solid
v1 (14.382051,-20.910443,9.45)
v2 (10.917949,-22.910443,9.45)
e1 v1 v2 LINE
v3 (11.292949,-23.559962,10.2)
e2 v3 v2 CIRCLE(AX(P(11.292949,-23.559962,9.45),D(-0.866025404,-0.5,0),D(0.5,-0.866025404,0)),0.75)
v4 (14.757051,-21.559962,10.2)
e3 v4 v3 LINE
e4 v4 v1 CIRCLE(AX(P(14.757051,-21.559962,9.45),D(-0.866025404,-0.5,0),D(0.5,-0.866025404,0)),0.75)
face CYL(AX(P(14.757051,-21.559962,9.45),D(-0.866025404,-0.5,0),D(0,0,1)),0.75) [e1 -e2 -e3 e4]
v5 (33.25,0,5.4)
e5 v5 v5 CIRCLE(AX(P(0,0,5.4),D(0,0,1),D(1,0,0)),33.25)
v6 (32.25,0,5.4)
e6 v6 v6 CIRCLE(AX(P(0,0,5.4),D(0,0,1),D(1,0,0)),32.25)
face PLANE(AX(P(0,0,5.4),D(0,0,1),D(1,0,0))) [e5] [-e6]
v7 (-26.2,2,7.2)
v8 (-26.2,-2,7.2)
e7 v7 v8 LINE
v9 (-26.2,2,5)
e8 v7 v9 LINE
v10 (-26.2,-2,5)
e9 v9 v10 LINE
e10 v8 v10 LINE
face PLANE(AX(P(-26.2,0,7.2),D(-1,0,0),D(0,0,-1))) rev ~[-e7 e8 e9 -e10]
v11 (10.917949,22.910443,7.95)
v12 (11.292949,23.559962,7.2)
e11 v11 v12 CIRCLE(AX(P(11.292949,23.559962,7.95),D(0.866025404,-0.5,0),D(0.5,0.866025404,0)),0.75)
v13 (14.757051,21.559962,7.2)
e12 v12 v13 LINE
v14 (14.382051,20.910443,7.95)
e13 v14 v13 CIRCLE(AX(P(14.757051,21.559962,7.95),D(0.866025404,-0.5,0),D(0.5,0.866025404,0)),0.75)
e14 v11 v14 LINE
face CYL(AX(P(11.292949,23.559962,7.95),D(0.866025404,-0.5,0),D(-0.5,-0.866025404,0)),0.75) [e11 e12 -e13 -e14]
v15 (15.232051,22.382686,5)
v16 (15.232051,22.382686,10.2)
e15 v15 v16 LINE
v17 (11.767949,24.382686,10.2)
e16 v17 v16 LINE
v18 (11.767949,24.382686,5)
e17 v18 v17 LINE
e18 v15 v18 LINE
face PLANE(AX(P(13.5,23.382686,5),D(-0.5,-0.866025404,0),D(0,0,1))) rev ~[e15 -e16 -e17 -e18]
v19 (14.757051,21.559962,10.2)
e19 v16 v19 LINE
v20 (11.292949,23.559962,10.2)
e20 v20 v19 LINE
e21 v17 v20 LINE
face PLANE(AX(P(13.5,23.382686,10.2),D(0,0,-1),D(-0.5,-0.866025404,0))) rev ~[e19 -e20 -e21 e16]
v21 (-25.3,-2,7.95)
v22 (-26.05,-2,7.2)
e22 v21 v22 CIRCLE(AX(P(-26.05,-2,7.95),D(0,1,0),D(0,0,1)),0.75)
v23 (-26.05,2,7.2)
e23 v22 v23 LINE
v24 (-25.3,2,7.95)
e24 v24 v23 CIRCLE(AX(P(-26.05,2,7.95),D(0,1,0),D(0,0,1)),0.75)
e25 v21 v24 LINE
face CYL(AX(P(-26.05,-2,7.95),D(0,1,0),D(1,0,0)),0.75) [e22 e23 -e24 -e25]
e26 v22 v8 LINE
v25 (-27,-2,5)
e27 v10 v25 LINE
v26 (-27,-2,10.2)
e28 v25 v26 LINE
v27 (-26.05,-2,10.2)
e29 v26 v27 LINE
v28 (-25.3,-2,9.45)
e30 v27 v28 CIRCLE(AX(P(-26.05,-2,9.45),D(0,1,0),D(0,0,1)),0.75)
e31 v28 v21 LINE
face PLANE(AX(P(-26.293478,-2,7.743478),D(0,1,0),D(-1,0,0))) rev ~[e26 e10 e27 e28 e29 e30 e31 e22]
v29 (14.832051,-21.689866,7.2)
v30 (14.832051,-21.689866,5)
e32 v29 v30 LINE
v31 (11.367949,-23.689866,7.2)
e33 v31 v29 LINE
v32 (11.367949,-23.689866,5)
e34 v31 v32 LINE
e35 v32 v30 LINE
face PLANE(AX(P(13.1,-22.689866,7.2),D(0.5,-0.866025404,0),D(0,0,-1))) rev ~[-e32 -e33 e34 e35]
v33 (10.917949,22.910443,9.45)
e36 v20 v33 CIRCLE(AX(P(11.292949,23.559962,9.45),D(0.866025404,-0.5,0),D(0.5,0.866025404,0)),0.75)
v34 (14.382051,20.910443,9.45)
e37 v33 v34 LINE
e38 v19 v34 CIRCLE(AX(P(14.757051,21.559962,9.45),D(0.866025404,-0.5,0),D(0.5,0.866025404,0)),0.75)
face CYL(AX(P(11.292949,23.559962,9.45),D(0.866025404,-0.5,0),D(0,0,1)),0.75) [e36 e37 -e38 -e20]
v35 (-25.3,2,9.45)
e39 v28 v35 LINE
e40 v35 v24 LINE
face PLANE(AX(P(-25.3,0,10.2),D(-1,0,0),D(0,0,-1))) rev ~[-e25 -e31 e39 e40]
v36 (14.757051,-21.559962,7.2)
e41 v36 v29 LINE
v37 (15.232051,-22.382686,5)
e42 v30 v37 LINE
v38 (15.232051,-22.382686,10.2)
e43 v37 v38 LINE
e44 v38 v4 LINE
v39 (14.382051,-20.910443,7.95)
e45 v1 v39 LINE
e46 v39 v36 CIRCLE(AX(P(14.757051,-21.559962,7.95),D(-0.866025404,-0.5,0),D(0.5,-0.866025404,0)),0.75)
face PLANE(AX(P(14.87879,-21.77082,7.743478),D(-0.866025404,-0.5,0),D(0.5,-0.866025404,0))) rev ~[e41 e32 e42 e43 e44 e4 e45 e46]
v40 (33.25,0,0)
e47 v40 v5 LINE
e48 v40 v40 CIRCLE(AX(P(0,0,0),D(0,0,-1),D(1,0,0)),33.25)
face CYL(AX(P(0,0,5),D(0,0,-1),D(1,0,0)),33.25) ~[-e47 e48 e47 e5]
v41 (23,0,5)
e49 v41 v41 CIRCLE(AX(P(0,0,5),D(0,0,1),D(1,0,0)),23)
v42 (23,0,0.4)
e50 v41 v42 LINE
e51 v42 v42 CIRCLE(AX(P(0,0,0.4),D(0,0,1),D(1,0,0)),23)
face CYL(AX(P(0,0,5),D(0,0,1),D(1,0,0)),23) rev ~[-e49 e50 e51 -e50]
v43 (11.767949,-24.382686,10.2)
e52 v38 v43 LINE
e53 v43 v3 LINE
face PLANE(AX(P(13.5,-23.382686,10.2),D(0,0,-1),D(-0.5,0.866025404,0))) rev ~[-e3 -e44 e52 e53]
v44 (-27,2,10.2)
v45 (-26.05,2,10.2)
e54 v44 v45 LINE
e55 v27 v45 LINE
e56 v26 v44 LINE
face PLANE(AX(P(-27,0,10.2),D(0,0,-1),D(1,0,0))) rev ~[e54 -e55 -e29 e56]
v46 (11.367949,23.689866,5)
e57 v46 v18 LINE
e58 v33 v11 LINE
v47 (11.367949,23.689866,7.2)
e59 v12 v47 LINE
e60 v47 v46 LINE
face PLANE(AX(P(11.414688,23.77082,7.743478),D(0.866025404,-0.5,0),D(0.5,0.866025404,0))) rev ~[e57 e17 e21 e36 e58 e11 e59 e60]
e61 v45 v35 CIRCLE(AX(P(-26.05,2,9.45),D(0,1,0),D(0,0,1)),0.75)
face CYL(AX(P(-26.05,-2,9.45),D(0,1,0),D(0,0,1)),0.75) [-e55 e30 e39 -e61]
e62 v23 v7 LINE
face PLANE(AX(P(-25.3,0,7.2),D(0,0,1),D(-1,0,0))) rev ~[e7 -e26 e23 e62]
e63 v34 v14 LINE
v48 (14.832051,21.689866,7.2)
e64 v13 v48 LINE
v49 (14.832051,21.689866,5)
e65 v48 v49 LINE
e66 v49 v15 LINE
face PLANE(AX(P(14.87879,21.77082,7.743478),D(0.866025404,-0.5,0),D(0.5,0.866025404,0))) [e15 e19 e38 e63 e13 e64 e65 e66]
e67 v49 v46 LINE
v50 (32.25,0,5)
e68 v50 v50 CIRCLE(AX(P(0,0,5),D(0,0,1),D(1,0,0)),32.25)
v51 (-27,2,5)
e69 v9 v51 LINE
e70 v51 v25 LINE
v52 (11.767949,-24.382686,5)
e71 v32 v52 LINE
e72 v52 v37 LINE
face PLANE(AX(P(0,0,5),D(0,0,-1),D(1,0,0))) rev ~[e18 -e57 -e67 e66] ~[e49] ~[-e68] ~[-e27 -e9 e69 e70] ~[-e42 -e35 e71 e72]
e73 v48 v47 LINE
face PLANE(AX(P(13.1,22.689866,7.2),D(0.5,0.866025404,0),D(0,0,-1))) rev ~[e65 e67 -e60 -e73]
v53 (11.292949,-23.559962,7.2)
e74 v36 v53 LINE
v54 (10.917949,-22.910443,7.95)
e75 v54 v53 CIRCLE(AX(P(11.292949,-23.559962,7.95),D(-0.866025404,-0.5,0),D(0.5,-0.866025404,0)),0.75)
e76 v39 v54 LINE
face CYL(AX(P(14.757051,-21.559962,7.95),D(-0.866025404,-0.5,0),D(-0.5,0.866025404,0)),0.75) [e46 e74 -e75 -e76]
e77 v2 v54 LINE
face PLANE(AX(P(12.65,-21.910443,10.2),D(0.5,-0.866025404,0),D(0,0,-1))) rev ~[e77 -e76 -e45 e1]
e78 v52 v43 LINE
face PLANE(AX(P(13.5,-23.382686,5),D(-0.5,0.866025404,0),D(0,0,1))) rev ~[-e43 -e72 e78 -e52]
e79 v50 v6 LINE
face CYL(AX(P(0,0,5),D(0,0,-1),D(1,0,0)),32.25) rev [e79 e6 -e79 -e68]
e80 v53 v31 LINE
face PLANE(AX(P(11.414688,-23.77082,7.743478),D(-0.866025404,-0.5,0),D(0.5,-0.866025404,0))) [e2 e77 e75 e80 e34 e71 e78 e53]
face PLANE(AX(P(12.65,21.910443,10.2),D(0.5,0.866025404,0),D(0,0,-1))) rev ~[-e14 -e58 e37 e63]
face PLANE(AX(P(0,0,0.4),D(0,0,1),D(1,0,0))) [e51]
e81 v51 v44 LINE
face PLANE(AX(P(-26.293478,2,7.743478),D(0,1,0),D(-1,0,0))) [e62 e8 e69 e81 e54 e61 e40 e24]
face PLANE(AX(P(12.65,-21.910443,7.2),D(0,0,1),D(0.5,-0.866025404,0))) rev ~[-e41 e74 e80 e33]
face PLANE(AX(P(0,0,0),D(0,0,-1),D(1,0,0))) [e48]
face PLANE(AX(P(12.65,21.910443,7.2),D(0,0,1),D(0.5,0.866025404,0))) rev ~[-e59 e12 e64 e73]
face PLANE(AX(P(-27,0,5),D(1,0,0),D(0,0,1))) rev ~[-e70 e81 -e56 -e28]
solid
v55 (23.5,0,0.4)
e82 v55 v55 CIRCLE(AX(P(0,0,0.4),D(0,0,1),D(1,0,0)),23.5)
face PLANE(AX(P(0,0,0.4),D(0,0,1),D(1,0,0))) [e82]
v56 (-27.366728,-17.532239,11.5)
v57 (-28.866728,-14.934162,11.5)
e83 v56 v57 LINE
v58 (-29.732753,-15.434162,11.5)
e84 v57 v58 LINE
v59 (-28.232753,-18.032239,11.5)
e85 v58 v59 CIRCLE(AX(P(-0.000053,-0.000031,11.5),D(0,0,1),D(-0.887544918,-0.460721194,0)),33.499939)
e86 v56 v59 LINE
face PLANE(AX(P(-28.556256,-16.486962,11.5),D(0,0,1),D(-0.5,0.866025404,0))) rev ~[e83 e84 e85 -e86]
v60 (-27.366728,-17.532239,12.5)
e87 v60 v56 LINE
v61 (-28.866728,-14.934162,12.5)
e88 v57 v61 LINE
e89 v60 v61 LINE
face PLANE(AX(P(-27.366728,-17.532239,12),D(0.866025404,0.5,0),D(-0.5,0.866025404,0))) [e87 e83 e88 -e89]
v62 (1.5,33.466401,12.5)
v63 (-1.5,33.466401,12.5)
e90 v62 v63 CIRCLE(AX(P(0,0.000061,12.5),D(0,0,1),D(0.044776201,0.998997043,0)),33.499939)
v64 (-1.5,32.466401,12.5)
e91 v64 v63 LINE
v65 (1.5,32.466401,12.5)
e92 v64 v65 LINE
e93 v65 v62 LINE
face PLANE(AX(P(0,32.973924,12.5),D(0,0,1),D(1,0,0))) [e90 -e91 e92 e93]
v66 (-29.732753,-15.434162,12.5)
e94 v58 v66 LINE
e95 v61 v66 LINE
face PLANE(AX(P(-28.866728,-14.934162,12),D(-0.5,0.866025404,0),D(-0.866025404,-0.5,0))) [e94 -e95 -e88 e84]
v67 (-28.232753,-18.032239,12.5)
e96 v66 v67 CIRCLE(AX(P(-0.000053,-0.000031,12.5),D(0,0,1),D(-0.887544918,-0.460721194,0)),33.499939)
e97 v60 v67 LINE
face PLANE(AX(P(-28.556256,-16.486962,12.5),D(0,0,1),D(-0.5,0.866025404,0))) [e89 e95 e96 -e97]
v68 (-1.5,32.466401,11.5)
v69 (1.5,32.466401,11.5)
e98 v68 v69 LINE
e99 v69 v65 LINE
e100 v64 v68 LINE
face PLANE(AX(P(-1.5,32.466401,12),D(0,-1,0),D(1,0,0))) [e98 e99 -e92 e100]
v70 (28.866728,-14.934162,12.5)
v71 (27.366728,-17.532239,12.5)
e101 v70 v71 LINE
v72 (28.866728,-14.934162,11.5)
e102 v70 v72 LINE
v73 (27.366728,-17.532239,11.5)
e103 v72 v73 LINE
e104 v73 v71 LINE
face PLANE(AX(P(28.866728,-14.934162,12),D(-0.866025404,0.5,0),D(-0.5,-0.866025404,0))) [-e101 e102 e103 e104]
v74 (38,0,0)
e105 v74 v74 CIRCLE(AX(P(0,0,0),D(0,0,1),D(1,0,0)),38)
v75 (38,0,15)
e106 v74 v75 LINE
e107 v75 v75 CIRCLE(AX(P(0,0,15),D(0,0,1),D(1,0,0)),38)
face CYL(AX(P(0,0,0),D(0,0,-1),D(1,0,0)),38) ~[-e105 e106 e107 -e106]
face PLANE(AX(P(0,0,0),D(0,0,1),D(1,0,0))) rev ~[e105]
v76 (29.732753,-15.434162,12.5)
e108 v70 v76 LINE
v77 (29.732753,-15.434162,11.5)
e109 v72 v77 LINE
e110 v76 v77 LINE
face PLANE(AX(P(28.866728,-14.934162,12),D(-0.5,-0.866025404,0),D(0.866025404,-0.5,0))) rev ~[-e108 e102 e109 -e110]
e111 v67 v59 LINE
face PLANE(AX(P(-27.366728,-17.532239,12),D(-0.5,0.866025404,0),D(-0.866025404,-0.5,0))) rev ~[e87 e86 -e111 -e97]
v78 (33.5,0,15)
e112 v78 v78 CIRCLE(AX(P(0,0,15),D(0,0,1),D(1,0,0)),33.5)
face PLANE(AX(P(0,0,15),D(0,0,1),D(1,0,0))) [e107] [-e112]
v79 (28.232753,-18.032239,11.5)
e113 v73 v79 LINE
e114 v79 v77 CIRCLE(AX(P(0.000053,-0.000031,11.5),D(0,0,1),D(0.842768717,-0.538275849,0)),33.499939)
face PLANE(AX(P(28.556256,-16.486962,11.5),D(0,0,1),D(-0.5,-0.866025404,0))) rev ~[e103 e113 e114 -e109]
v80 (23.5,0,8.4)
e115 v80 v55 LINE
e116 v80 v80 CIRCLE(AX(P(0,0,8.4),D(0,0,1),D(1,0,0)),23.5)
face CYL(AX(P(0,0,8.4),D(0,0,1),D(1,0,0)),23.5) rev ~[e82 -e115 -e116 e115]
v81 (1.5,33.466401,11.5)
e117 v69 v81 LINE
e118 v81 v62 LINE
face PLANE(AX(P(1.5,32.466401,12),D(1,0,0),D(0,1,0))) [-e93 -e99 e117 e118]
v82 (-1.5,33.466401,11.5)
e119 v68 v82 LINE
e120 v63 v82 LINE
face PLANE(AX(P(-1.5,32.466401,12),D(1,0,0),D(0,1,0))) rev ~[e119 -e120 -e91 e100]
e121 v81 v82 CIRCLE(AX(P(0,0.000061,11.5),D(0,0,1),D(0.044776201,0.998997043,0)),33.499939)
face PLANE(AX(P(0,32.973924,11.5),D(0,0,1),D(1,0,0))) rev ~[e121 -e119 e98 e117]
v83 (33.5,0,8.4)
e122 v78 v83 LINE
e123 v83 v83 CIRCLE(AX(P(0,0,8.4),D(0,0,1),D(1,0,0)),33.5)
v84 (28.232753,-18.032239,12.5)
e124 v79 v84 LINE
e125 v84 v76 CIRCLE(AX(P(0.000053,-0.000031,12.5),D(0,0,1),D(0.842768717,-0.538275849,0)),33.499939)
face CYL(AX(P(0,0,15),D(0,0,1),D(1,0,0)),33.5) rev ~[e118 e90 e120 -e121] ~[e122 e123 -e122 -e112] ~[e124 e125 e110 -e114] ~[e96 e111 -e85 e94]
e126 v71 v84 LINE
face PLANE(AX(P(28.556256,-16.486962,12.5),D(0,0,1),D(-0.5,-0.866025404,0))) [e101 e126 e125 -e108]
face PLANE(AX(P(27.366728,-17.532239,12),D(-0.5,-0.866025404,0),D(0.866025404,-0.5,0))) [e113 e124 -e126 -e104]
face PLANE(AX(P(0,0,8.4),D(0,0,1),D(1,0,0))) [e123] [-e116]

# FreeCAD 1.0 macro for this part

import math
import FreeCAD as App
import Part
import Sketcher

V = App.Vector
Q = App.Units.Quantity


def edges_at(feature, points):
    """Names of the edges that pass closest to the given points."""
    edges = feature.Shape.Edges
    near = lambda p: min(range(len(edges)), key=lambda i: edges[i].distToShape(Part.Vertex(*p))[0])
    return sorted({f"Edge{near(p) + 1}" for p in points})


def add_polygon(sketch, points):
    """Adds a closed chain of lines whose ends are joined by coincident constraints."""
    first, n = sketch.GeometryCount, len(points)
    for a, b in zip(points, points[1:] + points[:1]):
        sketch.addGeometry(Part.LineSegment(App.Vector(*a, 0), App.Vector(*b, 0)), False)
    for i in range(n):
        sketch.addConstraint(Sketcher.Constraint("Coincident", first + i, 2, first + (i + 1) % n, 1))

doc = App.newDocument("Part")
params = doc.addObject("Spreadsheet::Sheet", "Params")
for row, (alias, value) in enumerate([
    ("sketch1_diameter", "76 mm"),
    ("pad1_length", "15 mm"),
    ("sketch2_diameter", "67 mm"),
    ("pocket1_length", "6.6 mm"),
    ("sketch3_diameter", "47 mm"),
    ("pocket2_length", "8 mm"),
    ("sketch4_width", "3 mm"),
    ("sketch4_height", "1 mm"),
    ("pad2_length", "1 mm"),
    ("sketch5_diameter", "54.5 mm"),
    ("pad3_length", "5 mm"),
    ("sketch6_height", "3 mm"),
    ("sketch6_width", "0.8 mm"),
    ("sketch6_width2", "0.9 mm"),
    ("sketch6_height2", "5.2 mm"),
    ("pad4_length", "4 mm"),
    ("sketch7_diameter", "46 mm"),
    ("pocket3_length", "4.6 mm"),
    ("fillet_radius", "0.75 mm"),
    ("sketch8_diameter", "66.5 mm"),
    ("sketch8_diameter2", "54.5 mm"),
    ("pad5_length", "5 mm"),
    ("sketch9_diameter", "66.5 mm"),
    ("sketch9_diameter2", "64.5 mm"),
    ("pad6_length", "0.4 mm"),
], start=1):
    params.set(f"A{row}", alias)
    params.set(f"B{row}", "=" + value)
    params.setAlias(f"B{row}", alias)

body = doc.addObject("PartDesign::Body", "Body")

# Sketch on XY plane
sketch1 = body.newObject("Sketcher::SketchObject", "Sketch")
sketch1.AttachmentSupport = (doc.getObject("XY_Plane"), [""])
sketch1.MapMode = "FlatFace"
sketch1.addGeometry(Part.Circle(V(0, 0, 0), V(0, 0, 1), 38), False)
sketch1.addConstraint(Sketcher.Constraint("Coincident", 0, 3, -1, 1))
sketch1.addConstraint(Sketcher.Constraint("Diameter", 0, Q("76 mm")))
sketch1.setExpression("Constraints[1]", "Params.sketch1_diameter")
pad1 = body.newObject("PartDesign::Pad", "Pad")
pad1.Profile = sketch1
pad1.setExpression("Length", "Params.pad1_length")

# Sketch on XY plane
sketch2 = body.newObject("Sketcher::SketchObject", "Sketch001")
sketch2.AttachmentSupport = (doc.getObject("XY_Plane"), [""])
sketch2.MapMode = "FlatFace"
sketch2.AttachmentOffset = App.Placement(V(0, 0, 15), App.Rotation())
sketch2.addGeometry(Part.Circle(V(0, 0, 0), V(0, 0, 1), 34), False)
sketch2.addConstraint(Sketcher.Constraint("Coincident", 0, 3, -1, 1))
sketch2.addConstraint(Sketcher.Constraint("Diameter", 0, Q("67 mm")))
sketch2.setExpression("Constraints[1]", "Params.sketch2_diameter")
pocket1 = body.newObject("PartDesign::Pocket", "Pocket")
pocket1.Profile = sketch2
pocket1.setExpression("Length", "Params.pocket1_length")

# Sketch on XY plane
sketch3 = body.newObject("Sketcher::SketchObject", "Sketch002")
sketch3.AttachmentSupport = (doc.getObject("XY_Plane"), [""])
sketch3.MapMode = "FlatFace"
sketch3.AttachmentOffset = App.Placement(V(0, 0, 8.4), App.Rotation())
sketch3.addGeometry(Part.Circle(V(0, 0, 0), V(0, 0, 1), 24), False)
sketch3.addConstraint(Sketcher.Constraint("Coincident", 0, 3, -1, 1))
sketch3.addConstraint(Sketcher.Constraint("Diameter", 0, Q("47 mm")))
sketch3.setExpression("Constraints[1]", "Params.sketch3_diameter")
pocket2 = body.newObject("PartDesign::Pocket", "Pocket001")
pocket2.Profile = sketch3
pocket2.setExpression("Length", "Params.pocket2_length")

# Sketch on XY plane
sketch4 = body.newObject("Sketcher::SketchObject", "Sketch003")
sketch4.AttachmentSupport = (doc.getObject("XY_Plane"), [""])
sketch4.MapMode = "FlatFace"
sketch4.AttachmentOffset = App.Placement(V(0, 0, 12), App.Rotation())
sketch4.addGeometry(Part.LineSegment(V(-1.5, 32.5, 0), V(1.5, 32.5, 0)), False)
sketch4.addGeometry(Part.LineSegment(V(1.5, 32.5, 0), V(1.5, 33.5, 0)), False)
sketch4.addGeometry(Part.ArcOfCircle(Part.Circle(V(0, 0, 0), V(0, 0, 1), 33.5), math.radians(87.43), math.radians(92.57)), False)
sketch4.addGeometry(Part.LineSegment(V(-1.5, 33.5, 0), V(-1.5, 32.5, 0)), False)
sketch4.addConstraint(Sketcher.Constraint("Coincident", 0, 2, 1, 1))
sketch4.addConstraint(Sketcher.Constraint("Coincident", 1, 2, 2, 1))
sketch4.addConstraint(Sketcher.Constraint("Coincident", 2, 2, 3, 1))
sketch4.addConstraint(Sketcher.Constraint("Coincident", 3, 2, 0, 1))
sketch4.addConstraint(Sketcher.Constraint("Horizontal", 0))
sketch4.addConstraint(Sketcher.Constraint("Vertical", 1))
sketch4.addConstraint(Sketcher.Constraint("Vertical", 3))
sketch4.addConstraint(Sketcher.Constraint("Symmetric", 1, 2, 2, 2, -2))
sketch4.addConstraint(Sketcher.Constraint("DistanceX", 0, 1, 0, 2, Q("3 mm")))
sketch4.addConstraint(Sketcher.Constraint("DistanceY", 1, 1, 1, 2, Q("1 mm")))
sketch4.addConstraint(Sketcher.Constraint("Radius", 2, Q("33.499939 mm")))
sketch4.addConstraint(Sketcher.Constraint("DistanceY", -1, 1, 0, 2, Q("32.466401 mm")))
sketch4.setExpression("Constraints[8]", "Params.sketch4_width")
sketch4.setExpression("Constraints[9]", "Params.sketch4_height")
pad2 = body.newObject("PartDesign::Pad", "Pad001")
pad2.Profile = sketch4
pad2.setExpression("Length", "Params.pad2_length")
pad2.Midplane = True
doc.recompute()

polarpattern = body.newObject("PartDesign::PolarPattern", "PolarPattern")
polarpattern.Originals = [pad2]
polarpattern.Axis = (doc.getObject("Z_Axis"), [""])
polarpattern.Angle = 360
polarpattern.Occurrences = 3
body.Tip = polarpattern
body2 = doc.addObject("PartDesign::Body", "Body001")

# Sketch on XY plane
sketch5 = body2.newObject("Sketcher::SketchObject", "Sketch004")
sketch5.AttachmentSupport = (doc.getObject("XY_Plane001"), [""])
sketch5.MapMode = "FlatFace"
sketch5.addGeometry(Part.Circle(V(0, 0, 0), V(0, 0, 1), 27), False)
sketch5.addConstraint(Sketcher.Constraint("Coincident", 0, 3, -1, 1))
sketch5.addConstraint(Sketcher.Constraint("Diameter", 0, Q("54.5 mm")))
sketch5.setExpression("Constraints[1]", "Params.sketch5_diameter")
pad3 = body2.newObject("PartDesign::Pad", "Pad002")
pad3.Profile = sketch5
pad3.setExpression("Length", "Params.pad3_length")

# Sketch on XZ plane
sketch6 = body2.newObject("Sketcher::SketchObject", "Sketch005")
sketch6.AttachmentSupport = (doc.getObject("XZ_Plane001"), [""])
sketch6.MapMode = "FlatFace"
add_polygon(sketch6, [(-27, 10.2), (-27, 5), (-26.2, 5), (-26.2, 7.2), (-25.3, 7.2), (-25.3, 10.2)])  # lines 0-5
sketch6.addConstraint(Sketcher.Constraint("Vertical", 0))
sketch6.addConstraint(Sketcher.Constraint("Horizontal", 1))
sketch6.addConstraint(Sketcher.Constraint("Vertical", 2))
sketch6.addConstraint(Sketcher.Constraint("Horizontal", 3))
sketch6.addConstraint(Sketcher.Constraint("Vertical", 4))
sketch6.addConstraint(Sketcher.Constraint("Horizontal", 5))
sketch6.addConstraint(Sketcher.Constraint("DistanceY", 4, 1, 4, 2, Q("3 mm")))
sketch6.addConstraint(Sketcher.Constraint("DistanceX", 1, 1, 1, 2, Q("0.8 mm")))
sketch6.addConstraint(Sketcher.Constraint("DistanceX", 3, 1, 3, 2, Q("0.9 mm")))
sketch6.addConstraint(Sketcher.Constraint("DistanceY", 0, 2, 0, 1, Q("5.2 mm")))
sketch6.addConstraint(Sketcher.Constraint("DistanceX", 0, 2, -1, 1, Q("27 mm")))
sketch6.addConstraint(Sketcher.Constraint("DistanceY", -1, 1, 0, 2, Q("5 mm")))
sketch6.setExpression("Constraints[12]", "Params.sketch6_height")
sketch6.setExpression("Constraints[13]", "Params.sketch6_width")
sketch6.setExpression("Constraints[14]", "Params.sketch6_width2")
sketch6.setExpression("Constraints[15]", "Params.sketch6_height2")
pad4 = body2.newObject("PartDesign::Pad", "Pad003")
pad4.Profile = sketch6
pad4.setExpression("Length", "Params.pad4_length")
pad4.Midplane = True
doc.recompute()

polarpattern2 = body2.newObject("PartDesign::PolarPattern", "PolarPattern001")
polarpattern2.Originals = [pad4]
polarpattern2.Axis = (doc.getObject("Z_Axis001"), [""])
polarpattern2.Angle = 360
polarpattern2.Occurrences = 3
body2.Tip = polarpattern2

# Sketch on XY plane
sketch7 = body2.newObject("Sketcher::SketchObject", "Sketch006")
sketch7.AttachmentSupport = (doc.getObject("XY_Plane001"), [""])
sketch7.MapMode = "FlatFace"
sketch7.AttachmentOffset = App.Placement(V(0, 0, 5), App.Rotation())
sketch7.addGeometry(Part.Circle(V(0, 0, 0), V(0, 0, 1), 23), False)
sketch7.addConstraint(Sketcher.Constraint("Coincident", 0, 3, -1, 1))
sketch7.addConstraint(Sketcher.Constraint("Diameter", 0, Q("46 mm")))
sketch7.setExpression("Constraints[1]", "Params.sketch7_diameter")
pocket3 = body2.newObject("PartDesign::Pocket", "Pocket002")
pocket3.Profile = sketch7
pocket3.setExpression("Length", "Params.pocket3_length")
doc.recompute()

fillet = body2.newObject("PartDesign::Fillet", "Fillet")
fillet.Base = (pocket3, edges_at(pocket3, [
    (-25.3, 0, 10.2),
    (-25.3, 0, 7.2),
    (12.65, 21.91, 10.2),
    (12.65, 21.91, 7.2),
    (12.65, -21.91, 10.2),
    (12.65, -21.91, 7.2),
]))
fillet.setExpression("Radius", "Params.fillet_radius")

# Sketch on XY plane
sketch8 = body2.newObject("Sketcher::SketchObject", "Sketch007")
sketch8.AttachmentSupport = (doc.getObject("XY_Plane001"), [""])
sketch8.MapMode = "FlatFace"
sketch8.addGeometry(Part.Circle(V(0, 0, 0), V(0, 0, 1), 33), False)
sketch8.addGeometry(Part.Circle(V(0, 0, 0), V(0, 0, 1), 27), False)
sketch8.addConstraint(Sketcher.Constraint("Coincident", 0, 3, -1, 1))
sketch8.addConstraint(Sketcher.Constraint("Coincident", 1, 3, -1, 1))
sketch8.addConstraint(Sketcher.Constraint("Diameter", 0, Q("66.5 mm")))
sketch8.addConstraint(Sketcher.Constraint("Diameter", 1, Q("54.5 mm")))
sketch8.setExpression("Constraints[2]", "Params.sketch8_diameter")
sketch8.setExpression("Constraints[3]", "Params.sketch8_diameter2")
pad5 = body2.newObject("PartDesign::Pad", "Pad004")
pad5.Profile = sketch8
pad5.setExpression("Length", "Params.pad5_length")

# Sketch on XY plane
sketch9 = body2.newObject("Sketcher::SketchObject", "Sketch008")
sketch9.AttachmentSupport = (doc.getObject("XY_Plane001"), [""])
sketch9.MapMode = "FlatFace"
sketch9.AttachmentOffset = App.Placement(V(0, 0, 5), App.Rotation())
sketch9.addGeometry(Part.Circle(V(0, 0, 0), V(0, 0, 1), 33), False)
sketch9.addGeometry(Part.Circle(V(0, 0, 0), V(0, 0, 1), 32), False)
sketch9.addConstraint(Sketcher.Constraint("Coincident", 0, 3, -1, 1))
sketch9.addConstraint(Sketcher.Constraint("Coincident", 1, 3, -1, 1))
sketch9.addConstraint(Sketcher.Constraint("Diameter", 0, Q("66.5 mm")))
sketch9.addConstraint(Sketcher.Constraint("Diameter", 1, Q("64.5 mm")))
sketch9.setExpression("Constraints[2]", "Params.sketch9_diameter")
sketch9.setExpression("Constraints[3]", "Params.sketch9_diameter2")
pad6 = body2.newObject("PartDesign::Pad", "Pad005")
pad6.Profile = sketch9
pad6.setExpression("Length", "Params.pad6_length")

doc.recompute()
